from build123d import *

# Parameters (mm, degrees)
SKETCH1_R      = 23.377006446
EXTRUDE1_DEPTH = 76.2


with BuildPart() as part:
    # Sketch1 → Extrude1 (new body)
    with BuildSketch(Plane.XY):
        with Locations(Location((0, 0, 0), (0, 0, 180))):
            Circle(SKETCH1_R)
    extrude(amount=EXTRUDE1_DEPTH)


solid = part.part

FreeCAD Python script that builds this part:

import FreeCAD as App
import Part
import Sketcher
Q = App.Units.Quantity

doc = App.newDocument("Part")
body = doc.addObject("PartDesign::Body", "Body")

# Sketch on XY plane
sketch1 = body.newObject("Sketcher::SketchObject", "Sketch")
sketch1.AttachmentSupport = (doc.getObject("XY_Plane"), [""])
sketch1.MapMode = "FlatFace"
sketch1.addGeometry(Part.Circle(App.Vector(0, 0, 0), App.Vector(0, 0, 1), 23.377006), False)
sketch1.addConstraint([
    Sketcher.Constraint("Coincident", 0, 3, -1, 1),
    Sketcher.Constraint("Diameter", 0, 46.754013),
])
pad1 = body.newObject("PartDesign::Pad", "Pad")
pad1.Profile = sketch1
pad1.Length = Q("3 in")

doc.recompute()
